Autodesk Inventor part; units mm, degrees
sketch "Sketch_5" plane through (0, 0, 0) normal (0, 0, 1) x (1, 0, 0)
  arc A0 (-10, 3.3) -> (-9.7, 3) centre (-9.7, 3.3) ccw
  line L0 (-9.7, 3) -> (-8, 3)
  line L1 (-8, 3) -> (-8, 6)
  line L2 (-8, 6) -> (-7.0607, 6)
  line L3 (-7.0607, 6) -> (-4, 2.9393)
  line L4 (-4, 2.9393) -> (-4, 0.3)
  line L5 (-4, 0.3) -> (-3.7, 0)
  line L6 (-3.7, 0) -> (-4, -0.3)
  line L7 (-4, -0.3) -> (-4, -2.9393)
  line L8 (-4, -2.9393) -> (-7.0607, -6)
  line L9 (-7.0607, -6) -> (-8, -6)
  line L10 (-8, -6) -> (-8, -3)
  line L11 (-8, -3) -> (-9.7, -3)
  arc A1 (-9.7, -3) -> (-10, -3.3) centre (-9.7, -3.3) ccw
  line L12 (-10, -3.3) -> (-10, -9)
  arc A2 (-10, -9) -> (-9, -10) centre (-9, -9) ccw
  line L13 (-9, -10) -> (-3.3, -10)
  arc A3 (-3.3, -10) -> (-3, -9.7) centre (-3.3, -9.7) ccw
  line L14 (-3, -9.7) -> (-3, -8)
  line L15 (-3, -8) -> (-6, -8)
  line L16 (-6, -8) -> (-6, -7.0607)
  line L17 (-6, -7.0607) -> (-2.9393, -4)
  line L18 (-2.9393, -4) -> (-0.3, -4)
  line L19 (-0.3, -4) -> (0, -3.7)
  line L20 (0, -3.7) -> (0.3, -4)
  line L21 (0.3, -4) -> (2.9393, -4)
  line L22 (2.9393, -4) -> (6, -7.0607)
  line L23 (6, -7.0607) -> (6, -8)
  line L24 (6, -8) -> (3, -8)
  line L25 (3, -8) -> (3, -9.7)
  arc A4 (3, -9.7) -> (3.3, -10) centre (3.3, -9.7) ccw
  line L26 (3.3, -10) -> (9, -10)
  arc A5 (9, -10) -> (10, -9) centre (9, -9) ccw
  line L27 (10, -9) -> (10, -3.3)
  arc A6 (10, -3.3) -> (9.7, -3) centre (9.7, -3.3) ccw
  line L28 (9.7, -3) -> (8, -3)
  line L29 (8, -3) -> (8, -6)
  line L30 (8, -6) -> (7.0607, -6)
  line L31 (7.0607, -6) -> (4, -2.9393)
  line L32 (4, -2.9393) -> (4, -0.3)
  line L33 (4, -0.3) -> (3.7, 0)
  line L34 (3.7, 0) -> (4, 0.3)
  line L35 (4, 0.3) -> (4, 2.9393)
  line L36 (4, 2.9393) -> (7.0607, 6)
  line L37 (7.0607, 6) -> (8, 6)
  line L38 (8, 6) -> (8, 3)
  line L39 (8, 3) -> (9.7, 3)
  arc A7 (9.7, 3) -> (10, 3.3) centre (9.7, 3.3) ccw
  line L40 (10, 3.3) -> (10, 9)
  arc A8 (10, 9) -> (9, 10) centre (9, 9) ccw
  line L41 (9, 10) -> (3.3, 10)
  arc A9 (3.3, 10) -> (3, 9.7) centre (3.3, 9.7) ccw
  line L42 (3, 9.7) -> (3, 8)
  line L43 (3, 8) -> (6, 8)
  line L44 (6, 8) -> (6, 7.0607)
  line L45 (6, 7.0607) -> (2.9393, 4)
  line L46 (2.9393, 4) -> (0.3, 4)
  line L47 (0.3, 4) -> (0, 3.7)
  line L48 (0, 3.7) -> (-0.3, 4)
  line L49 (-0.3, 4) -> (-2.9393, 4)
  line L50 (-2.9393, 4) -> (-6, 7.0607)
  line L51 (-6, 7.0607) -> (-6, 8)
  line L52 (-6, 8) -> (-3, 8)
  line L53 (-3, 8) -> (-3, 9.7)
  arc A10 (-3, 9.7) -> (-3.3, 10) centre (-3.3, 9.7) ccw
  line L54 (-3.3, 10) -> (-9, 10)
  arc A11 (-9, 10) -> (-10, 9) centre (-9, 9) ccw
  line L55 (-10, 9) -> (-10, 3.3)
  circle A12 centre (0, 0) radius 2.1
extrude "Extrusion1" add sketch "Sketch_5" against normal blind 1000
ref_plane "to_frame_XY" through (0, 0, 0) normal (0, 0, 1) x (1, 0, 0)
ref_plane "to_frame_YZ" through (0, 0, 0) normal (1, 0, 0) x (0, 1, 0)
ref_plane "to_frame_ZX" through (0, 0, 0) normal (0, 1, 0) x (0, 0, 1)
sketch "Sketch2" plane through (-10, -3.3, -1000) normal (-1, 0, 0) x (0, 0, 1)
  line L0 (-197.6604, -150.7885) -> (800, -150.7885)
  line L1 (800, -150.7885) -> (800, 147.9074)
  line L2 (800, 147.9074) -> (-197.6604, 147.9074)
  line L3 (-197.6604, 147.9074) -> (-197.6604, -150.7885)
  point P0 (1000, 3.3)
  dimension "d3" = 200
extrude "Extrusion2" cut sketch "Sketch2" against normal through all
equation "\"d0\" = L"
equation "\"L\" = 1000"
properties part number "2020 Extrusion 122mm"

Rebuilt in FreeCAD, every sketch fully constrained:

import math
import FreeCAD as App
import Part
import Sketcher
from FreeCAD import Vector
Q = App.Units.Quantity


def add_polygon(sketch, points):
    """Adds a closed chain of lines whose ends are joined by coincident constraints."""
    first, n = sketch.GeometryCount, len(points)
    for a, b in zip(points, points[1:] + points[:1]):
        sketch.addGeometry(Part.LineSegment(App.Vector(*a, 0), App.Vector(*b, 0)), False)
    for i in range(n):
        sketch.addConstraint(Sketcher.Constraint("Coincident", first + i, 2, first + (i + 1) % n, 1))

doc = App.newDocument("Part")
params = doc.addObject("Spreadsheet::Sheet", "Params")
for row, (alias, value) in enumerate([
    ("sketch1_radius", "1 mm"),
    ("sketch1_diameter", "4.2 mm"),
    ("sketch1_radius2", "0.3 mm"),
    ("sketch1_width", "3 mm"),
    ("sketch1_width2", "1.7 mm"),
    ("pad1_length", "1000 mm"),
], start=1):
    params.set(f"A{row}", alias)
    params.set(f"B{row}", "=" + value)
    params.setAlias(f"B{row}", alias)

body = doc.addObject("PartDesign::Body", "Body")

# Sketch on XY plane
sketch1 = body.newObject("Sketcher::SketchObject", "Sketch")
sketch1.AttachmentSupport = (doc.getObject("XY_Plane"), [""])
sketch1.MapMode = "FlatFace"
sketch1.addGeometry([
    Part.LineSegment(Vector(-10, 9, 0), Vector(-10, 3.3, 0)),  # 0
    Part.ArcOfCircle(Part.Circle(Vector(-9.7, 3.3, 0), Vector(0, 0, 1), 0.3), math.radians(180), math.radians(270)),  # 1
    Part.LineSegment(Vector(-9.7, 3, 0), Vector(-8, 3, 0)),  # 2
    Part.LineSegment(Vector(-8, 3, 0), Vector(-8, 6, 0)),  # 3
    Part.LineSegment(Vector(-8, 6, 0), Vector(-7.06, 6, 0)),  # 4
    Part.LineSegment(Vector(-7.06, 6, 0), Vector(-4, 2.94, 0)),  # 5
    Part.LineSegment(Vector(-4, 2.94, 0), Vector(-4, 0.3, 0)),  # 6
    Part.LineSegment(Vector(-4, 0.3, 0), Vector(-3.7, 0, 0)),  # 7
    Part.LineSegment(Vector(-3.7, 0, 0), Vector(-4, -0.3, 0)),  # 8
    Part.LineSegment(Vector(-4, -0.3, 0), Vector(-4, -2.94, 0)),  # 9
    Part.LineSegment(Vector(-4, -2.94, 0), Vector(-7.06, -6, 0)),  # 10
    Part.LineSegment(Vector(-7.06, -6, 0), Vector(-8, -6, 0)),  # 11
    Part.LineSegment(Vector(-8, -6, 0), Vector(-8, -3, 0)),  # 12
    Part.LineSegment(Vector(-8, -3, 0), Vector(-9.7, -3, 0)),  # 13
    Part.ArcOfCircle(Part.Circle(Vector(-9.7, -3.3, 0), Vector(0, 0, 1), 0.3), math.radians(90), math.radians(180)),  # 14
    Part.LineSegment(Vector(-10, -3.3, 0), Vector(-10, -9, 0)),  # 15
    Part.ArcOfCircle(Part.Circle(Vector(-9, -9, 0), Vector(0, 0, 1), 1), math.radians(180), math.radians(270)),  # 16
    Part.LineSegment(Vector(-9, -10, 0), Vector(-3.3, -10, 0)),  # 17
    Part.ArcOfCircle(Part.Circle(Vector(-3.3, -9.7, 0), Vector(0, 0, 1), 0.3), math.radians(-90), math.radians(0)),  # 18
    Part.LineSegment(Vector(-3, -9.7, 0), Vector(-3, -8, 0)),  # 19
    Part.LineSegment(Vector(-3, -8, 0), Vector(-6, -8, 0)),  # 20
    Part.LineSegment(Vector(-6, -8, 0), Vector(-6, -7.06, 0)),  # 21
    Part.LineSegment(Vector(-6, -7.06, 0), Vector(-2.94, -4, 0)),  # 22
    Part.LineSegment(Vector(-2.94, -4, 0), Vector(-0.3, -4, 0)),  # 23
    Part.LineSegment(Vector(-0.3, -4, 0), Vector(0, -3.7, 0)),  # 24
    Part.LineSegment(Vector(0, -3.7, 0), Vector(0.3, -4, 0)),  # 25
    Part.LineSegment(Vector(0.3, -4, 0), Vector(2.94, -4, 0)),  # 26
    Part.LineSegment(Vector(2.94, -4, 0), Vector(6, -7.06, 0)),  # 27
    Part.LineSegment(Vector(6, -7.06, 0), Vector(6, -8, 0)),  # 28
    Part.LineSegment(Vector(6, -8, 0), Vector(3, -8, 0)),  # 29
    Part.LineSegment(Vector(3, -8, 0), Vector(3, -9.7, 0)),  # 30
    Part.ArcOfCircle(Part.Circle(Vector(3.3, -9.7, 0), Vector(0, 0, 1), 0.3), math.radians(180), math.radians(270)),  # 31
    Part.LineSegment(Vector(3.3, -10, 0), Vector(9, -10, 0)),  # 32
    Part.ArcOfCircle(Part.Circle(Vector(9, -9, 0), Vector(0, 0, 1), 1), math.radians(-90), math.radians(0)),  # 33
    Part.LineSegment(Vector(10, -9, 0), Vector(10, -3.3, 0)),  # 34
    Part.ArcOfCircle(Part.Circle(Vector(9.7, -3.3, 0), Vector(0, 0, 1), 0.3), math.radians(0), math.radians(90)),  # 35
    Part.LineSegment(Vector(9.7, -3, 0), Vector(8, -3, 0)),  # 36
    Part.LineSegment(Vector(8, -3, 0), Vector(8, -6, 0)),  # 37
    Part.LineSegment(Vector(8, -6, 0), Vector(7.06, -6, 0)),  # 38
    Part.LineSegment(Vector(7.06, -6, 0), Vector(4, -2.94, 0)),  # 39
    Part.LineSegment(Vector(4, -2.94, 0), Vector(4, -0.3, 0)),  # 40
    Part.LineSegment(Vector(4, -0.3, 0), Vector(3.7, 0, 0)),  # 41
    Part.LineSegment(Vector(3.7, 0, 0), Vector(4, 0.3, 0)),  # 42
    Part.LineSegment(Vector(4, 0.3, 0), Vector(4, 2.94, 0)),  # 43
    Part.LineSegment(Vector(4, 2.94, 0), Vector(7.06, 6, 0)),  # 44
    Part.LineSegment(Vector(7.06, 6, 0), Vector(8, 6, 0)),  # 45
    Part.LineSegment(Vector(8, 6, 0), Vector(8, 3, 0)),  # 46
    Part.LineSegment(Vector(8, 3, 0), Vector(9.7, 3, 0)),  # 47
    Part.ArcOfCircle(Part.Circle(Vector(9.7, 3.3, 0), Vector(0, 0, 1), 0.3), math.radians(-90), math.radians(0)),  # 48
    Part.LineSegment(Vector(10, 3.3, 0), Vector(10, 9, 0)),  # 49
    Part.ArcOfCircle(Part.Circle(Vector(9, 9, 0), Vector(0, 0, 1), 1), math.radians(0), math.radians(90)),  # 50
    Part.LineSegment(Vector(9, 10, 0), Vector(3.3, 10, 0)),  # 51
    Part.ArcOfCircle(Part.Circle(Vector(3.3, 9.7, 0), Vector(0, 0, 1), 0.3), math.radians(90), math.radians(180)),  # 52
    Part.LineSegment(Vector(3, 9.7, 0), Vector(3, 8, 0)),  # 53
    Part.LineSegment(Vector(3, 8, 0), Vector(6, 8, 0)),  # 54
    Part.LineSegment(Vector(6, 8, 0), Vector(6, 7.06, 0)),  # 55
    Part.LineSegment(Vector(6, 7.06, 0), Vector(2.94, 4, 0)),  # 56
    Part.LineSegment(Vector(2.94, 4, 0), Vector(0.3, 4, 0)),  # 57
    Part.LineSegment(Vector(0.3, 4, 0), Vector(0, 3.7, 0)),  # 58
    Part.LineSegment(Vector(0, 3.7, 0), Vector(-0.3, 4, 0)),  # 59
    Part.LineSegment(Vector(-0.3, 4, 0), Vector(-2.94, 4, 0)),  # 60
    Part.LineSegment(Vector(-2.94, 4, 0), Vector(-6, 7.06, 0)),  # 61
    Part.LineSegment(Vector(-6, 7.06, 0), Vector(-6, 8, 0)),  # 62
    Part.LineSegment(Vector(-6, 8, 0), Vector(-3, 8, 0)),  # 63
    Part.LineSegment(Vector(-3, 8, 0), Vector(-3, 9.7, 0)),  # 64
    Part.ArcOfCircle(Part.Circle(Vector(-3.3, 9.7, 0), Vector(0, 0, 1), 0.3), math.radians(0), math.radians(90)),  # 65
    Part.LineSegment(Vector(-3.3, 10, 0), Vector(-9, 10, 0)),  # 66
    Part.ArcOfCircle(Part.Circle(Vector(-9, 9, 0), Vector(0, 0, 1), 1), math.radians(90), math.radians(180)),  # 67
    Part.Circle(Vector(0, 0, 0), Vector(0, 0, 1), 2.1),  # 68
], False)
sketch1.addConstraint([
    Sketcher.Constraint("Tangent", 0, 2, 1, 1),
    Sketcher.Constraint("Tangent", 1, 2, 2, 1),
    Sketcher.Constraint("Coincident", 2, 2, 3, 1),
    Sketcher.Constraint("Coincident", 3, 2, 4, 1),
    Sketcher.Constraint("Coincident", 4, 2, 5, 1),
    Sketcher.Constraint("Coincident", 5, 2, 6, 1),
    Sketcher.Constraint("Coincident", 6, 2, 7, 1),
    Sketcher.Constraint("Coincident", 7, 2, 8, 1),
    Sketcher.Constraint("Coincident", 8, 2, 9, 1),
    Sketcher.Constraint("Coincident", 9, 2, 10, 1),
    Sketcher.Constraint("Coincident", 10, 2, 11, 1),
    Sketcher.Constraint("Coincident", 11, 2, 12, 1),
    Sketcher.Constraint("Coincident", 12, 2, 13, 1),
    Sketcher.Constraint("Tangent", 13, 2, 14, 1),
    Sketcher.Constraint("Tangent", 14, 2, 15, 1),
    Sketcher.Constraint("Tangent", 15, 2, 16, 1),
    Sketcher.Constraint("Tangent", 16, 2, 17, 1),
    Sketcher.Constraint("Tangent", 17, 2, 18, 1),
    Sketcher.Constraint("Tangent", 18, 2, 19, 1),
    Sketcher.Constraint("Coincident", 19, 2, 20, 1),
    Sketcher.Constraint("Coincident", 20, 2, 21, 1),
    Sketcher.Constraint("Coincident", 21, 2, 22, 1),
    Sketcher.Constraint("Coincident", 22, 2, 23, 1),
    Sketcher.Constraint("Coincident", 23, 2, 24, 1),
    Sketcher.Constraint("Coincident", 24, 2, 25, 1),
    Sketcher.Constraint("Coincident", 25, 2, 26, 1),
    Sketcher.Constraint("Coincident", 26, 2, 27, 1),
    Sketcher.Constraint("Coincident", 27, 2, 28, 1),
    Sketcher.Constraint("Coincident", 28, 2, 29, 1),
    Sketcher.Constraint("Coincident", 29, 2, 30, 1),
    Sketcher.Constraint("Tangent", 30, 2, 31, 1),
    Sketcher.Constraint("Tangent", 31, 2, 32, 1),
    Sketcher.Constraint("Tangent", 32, 2, 33, 1),
    Sketcher.Constraint("Tangent", 33, 2, 34, 1),
    Sketcher.Constraint("Tangent", 34, 2, 35, 1),
    Sketcher.Constraint("Tangent", 35, 2, 36, 1),
    Sketcher.Constraint("Coincident", 36, 2, 37, 1),
    Sketcher.Constraint("Coincident", 37, 2, 38, 1),
    Sketcher.Constraint("Coincident", 38, 2, 39, 1),
    Sketcher.Constraint("Coincident", 39, 2, 40, 1),
    Sketcher.Constraint("Coincident", 40, 2, 41, 1),
    Sketcher.Constraint("Coincident", 41, 2, 42, 1),
    Sketcher.Constraint("Coincident", 42, 2, 43, 1),
    Sketcher.Constraint("Coincident", 43, 2, 44, 1),
    Sketcher.Constraint("Coincident", 44, 2, 45, 1),
    Sketcher.Constraint("Coincident", 45, 2, 46, 1),
    Sketcher.Constraint("Coincident", 46, 2, 47, 1),
    Sketcher.Constraint("Tangent", 47, 2, 48, 1),
    Sketcher.Constraint("Tangent", 48, 2, 49, 1),
    Sketcher.Constraint("Tangent", 49, 2, 50, 1),
    Sketcher.Constraint("Tangent", 50, 2, 51, 1),
    Sketcher.Constraint("Tangent", 51, 2, 52, 1),
    Sketcher.Constraint("Tangent", 52, 2, 53, 1),
    Sketcher.Constraint("Coincident", 53, 2, 54, 1),
    Sketcher.Constraint("Coincident", 54, 2, 55, 1),
    Sketcher.Constraint("Coincident", 55, 2, 56, 1),
    Sketcher.Constraint("Coincident", 56, 2, 57, 1),
    Sketcher.Constraint("Coincident", 57, 2, 58, 1),
    Sketcher.Constraint("Coincident", 58, 2, 59, 1),
    Sketcher.Constraint("Coincident", 59, 2, 60, 1),
    Sketcher.Constraint("Coincident", 60, 2, 61, 1),
    Sketcher.Constraint("Coincident", 61, 2, 62, 1),
    Sketcher.Constraint("Coincident", 62, 2, 63, 1),
    Sketcher.Constraint("Coincident", 63, 2, 64, 1),
    Sketcher.Constraint("Tangent", 64, 2, 65, 1),
    Sketcher.Constraint("Tangent", 65, 2, 66, 1),
    Sketcher.Constraint("Tangent", 66, 2, 67, 1),
    Sketcher.Constraint("Tangent", 67, 2, 0, 1),
    Sketcher.Constraint("Vertical", 0),
    Sketcher.Constraint("Horizontal", 2),
    Sketcher.Constraint("Vertical", 3),
    Sketcher.Constraint("Horizontal", 4),
    Sketcher.Constraint("Vertical", 6),
    Sketcher.Constraint("Vertical", 9),
    Sketcher.Constraint("Horizontal", 11),
    Sketcher.Constraint("Vertical", 12),
    Sketcher.Constraint("Horizontal", 13),
    Sketcher.Constraint("Vertical", 15),
    Sketcher.Constraint("Horizontal", 17),
    Sketcher.Constraint("Vertical", 19),
    Sketcher.Constraint("Horizontal", 20),
    Sketcher.Constraint("Vertical", 21),
    Sketcher.Constraint("Horizontal", 23),
    Sketcher.Constraint("Horizontal", 26),
    Sketcher.Constraint("Vertical", 28),
    Sketcher.Constraint("Horizontal", 29),
    Sketcher.Constraint("Vertical", 30),
    Sketcher.Constraint("Horizontal", 32),
    Sketcher.Constraint("Vertical", 34),
    Sketcher.Constraint("Horizontal", 36),
    Sketcher.Constraint("Vertical", 37),
    Sketcher.Constraint("Horizontal", 38),
    Sketcher.Constraint("Vertical", 40),
    Sketcher.Constraint("Vertical", 43),
    Sketcher.Constraint("Horizontal", 45),
    Sketcher.Constraint("Vertical", 46),
    Sketcher.Constraint("Horizontal", 47),
    Sketcher.Constraint("Vertical", 49),
    Sketcher.Constraint("Horizontal", 51),
    Sketcher.Constraint("Vertical", 53),
    Sketcher.Constraint("Horizontal", 54),
    Sketcher.Constraint("Vertical", 55),
    Sketcher.Constraint("Horizontal", 57),
    Sketcher.Constraint("Horizontal", 60),
    Sketcher.Constraint("Vertical", 62),
    Sketcher.Constraint("Horizontal", 63),
    Sketcher.Constraint("Vertical", 64),
    Sketcher.Constraint("Horizontal", 66),
    Sketcher.Constraint("Coincident", 68, 3, -1, 1),
    Sketcher.Constraint("Equal", 1, 14),
    Sketcher.Constraint("Equal", 14, 18),
    Sketcher.Constraint("Equal", 18, 31),
    Sketcher.Constraint("Equal", 16, 33),
    Sketcher.Constraint("Equal", 31, 35),
    Sketcher.Constraint("Equal", 35, 48),
    Sketcher.Constraint("Equal", 33, 50),
    Sketcher.Constraint("Equal", 48, 52),
    Sketcher.Constraint("Equal", 52, 65),
    Sketcher.Constraint("Equal", 50, 67),
    Sketcher.Constraint("Symmetric", 1, 3, 35, 3, -1, 1),
    Sketcher.Constraint("Symmetric", 14, 3, 48, 3, -1, 1),
    Sketcher.Constraint("Symmetric", 18, 3, 52, 3, -1, 1),
    Sketcher.Constraint("Symmetric", 31, 3, 65, 3, -1, 1),
    Sketcher.Constraint("Symmetric", 3, 2, 37, 2, -1, 1),
    Sketcher.Constraint("Symmetric", 5, 2, 39, 2, -1, 1),
    Sketcher.Constraint("Symmetric", 7, 2, 41, 2, -1, 1),
    Sketcher.Constraint("Symmetric", 8, 2, 42, 2, -1, 1),
    Sketcher.Constraint("Symmetric", 10, 2, 44, 2, -1, 1),
    Sketcher.Constraint("Symmetric", 20, 2, 54, 2, -1, 1),
    Sketcher.Constraint("Symmetric", 22, 2, 56, 2, -1, 1),
    Sketcher.Constraint("Symmetric", 24, 2, 58, 2, -1, 1),
    Sketcher.Constraint("Symmetric", 25, 2, 59, 2, -1, 1),
    Sketcher.Constraint("Symmetric", 27, 2, 61, 2, -1, 1),
    Sketcher.Constraint("Symmetric", 18, 3, 31, 3, -2),
    Sketcher.Constraint("Symmetric", 14, 3, 35, 3, -2),
    Sketcher.Constraint("Symmetric", 23, 2, 25, 2, -2),
    Sketcher.Constraint("Symmetric", 21, 2, 27, 2, -2),
    Sketcher.Constraint("Symmetric", 11, 2, 37, 2, -2),
    Sketcher.Constraint("Symmetric", 9, 2, 39, 2, -2),
    Sketcher.Constraint("PointOnObject", 7, 2, -1),
    Sketcher.Constraint("PointOnObject", 24, 2, -2),
    Sketcher.Constraint("Parallel", 5, 7),
    Sketcher.Constraint("Perpendicular", 7, 8),
    Sketcher.Constraint("Parallel", 8, 10),
    Sketcher.Constraint("Parallel", 10, 22),
    Sketcher.Constraint("Parallel", 22, 24),
    Sketcher.Constraint("Perpendicular", 24, 25),
    Sketcher.Constraint("Parallel", 25, 27),
    Sketcher.Constraint("Parallel", 27, 39),
    Sketcher.Constraint("Parallel", 39, 41),
    Sketcher.Constraint("Parallel", 42, 44),
    Sketcher.Constraint("Parallel", 44, 56),
    Sketcher.Constraint("Parallel", 56, 58),
    Sketcher.Constraint("Parallel", 59, 61),
    Sketcher.Constraint("Horizontal", 20, 2, 28, 2),
    Sketcher.Constraint("Horizontal", 54, 2, 62, 2),
    Sketcher.Constraint("Vertical", 37, 2, 45, 2),
    Sketcher.Constraint("Equal", 66, 0),
    Sketcher.Constraint("Equal", 63, 3),
    Sketcher.Constraint("Equal", 60, 6),
    Sketcher.Constraint("Equal", 47, 19),
    Sketcher.Constraint("Equal", 45, 21),
    Sketcher.Constraint("Equal", 10, 22),
    Sketcher.Constraint("Equal", 8, 24),
    Sketcher.Constraint("Radius", 16, Q("1 mm")),
    Sketcher.Constraint("Diameter", 68, Q("4.2 mm")),
    Sketcher.Constraint("Radius", 1, Q("0.3 mm")),
    Sketcher.Constraint("DistanceX", 20, 2, 20, 1, Q("3 mm")),
    Sketcher.Constraint("DistanceX", 2, 1, 2, 2, Q("1.7 mm")),
    Sketcher.Constraint("DistanceX", 17, 1, 17, 2, Q("5.7 mm")),
    Sketcher.Constraint("DistanceX", 16, 3, -1, 1, Q("9 mm")),
    Sketcher.Constraint("DistanceX", 5, 2, -1, 1, Q("4 mm")),
    Sketcher.Constraint("DistanceY", -1, 1, 6, 2, Q("0.3 mm")),
    Sketcher.Constraint("DistanceX", 4, 1, 4, 2, Q("0.9393 mm")),
])
sketch1.setExpression("Constraints[164]", "Params.sketch1_radius")
sketch1.setExpression("Constraints[165]", "Params.sketch1_diameter")
sketch1.setExpression("Constraints[166]", "Params.sketch1_radius2")
sketch1.setExpression("Constraints[167]", "Params.sketch1_width")
sketch1.setExpression("Constraints[168]", "Params.sketch1_width2")
pad1 = body.newObject("PartDesign::Pad", "Pad")
pad1.Profile = sketch1
pad1.setExpression("Length", "Params.pad1_length")
pad1.Reversed = True

# Sketch on YZ plane
sketch2 = body.newObject("Sketcher::SketchObject", "Sketch001")
sketch2.AttachmentSupport = (doc.getObject("YZ_Plane"), [""])
sketch2.MapMode = "FlatFace"
sketch2.AttachmentOffset = App.Placement(Vector(0, 0, -10), App.Rotation())
add_polygon(sketch2, [(145, -1198), (-154, -1198), (-154, -200), (145, -200)])  # lines 0-3
sketch2.addConstraint([
    Sketcher.Constraint("Horizontal", 0),
    Sketcher.Constraint("Vertical", 1),
    Sketcher.Constraint("Horizontal", 2),
    Sketcher.Constraint("Vertical", 3),
    Sketcher.Constraint("DistanceY", 1, 2, -1, 1, Q("200 mm")),
    Sketcher.Constraint("DistanceX", 0, 2, 0, 1, Q("298.696 mm")),
    Sketcher.Constraint("DistanceY", 1, 1, 1, 2, Q("997.6604 mm")),
    Sketcher.Constraint("DistanceX", 0, 2, -1, 1, Q("154.0885 mm")),
])
pocket1 = body.newObject("PartDesign::Pocket", "Pocket")
pocket1.Profile = sketch2
pocket1.Type = "ThroughAll"
pocket1.Reversed = True

doc.recompute()
